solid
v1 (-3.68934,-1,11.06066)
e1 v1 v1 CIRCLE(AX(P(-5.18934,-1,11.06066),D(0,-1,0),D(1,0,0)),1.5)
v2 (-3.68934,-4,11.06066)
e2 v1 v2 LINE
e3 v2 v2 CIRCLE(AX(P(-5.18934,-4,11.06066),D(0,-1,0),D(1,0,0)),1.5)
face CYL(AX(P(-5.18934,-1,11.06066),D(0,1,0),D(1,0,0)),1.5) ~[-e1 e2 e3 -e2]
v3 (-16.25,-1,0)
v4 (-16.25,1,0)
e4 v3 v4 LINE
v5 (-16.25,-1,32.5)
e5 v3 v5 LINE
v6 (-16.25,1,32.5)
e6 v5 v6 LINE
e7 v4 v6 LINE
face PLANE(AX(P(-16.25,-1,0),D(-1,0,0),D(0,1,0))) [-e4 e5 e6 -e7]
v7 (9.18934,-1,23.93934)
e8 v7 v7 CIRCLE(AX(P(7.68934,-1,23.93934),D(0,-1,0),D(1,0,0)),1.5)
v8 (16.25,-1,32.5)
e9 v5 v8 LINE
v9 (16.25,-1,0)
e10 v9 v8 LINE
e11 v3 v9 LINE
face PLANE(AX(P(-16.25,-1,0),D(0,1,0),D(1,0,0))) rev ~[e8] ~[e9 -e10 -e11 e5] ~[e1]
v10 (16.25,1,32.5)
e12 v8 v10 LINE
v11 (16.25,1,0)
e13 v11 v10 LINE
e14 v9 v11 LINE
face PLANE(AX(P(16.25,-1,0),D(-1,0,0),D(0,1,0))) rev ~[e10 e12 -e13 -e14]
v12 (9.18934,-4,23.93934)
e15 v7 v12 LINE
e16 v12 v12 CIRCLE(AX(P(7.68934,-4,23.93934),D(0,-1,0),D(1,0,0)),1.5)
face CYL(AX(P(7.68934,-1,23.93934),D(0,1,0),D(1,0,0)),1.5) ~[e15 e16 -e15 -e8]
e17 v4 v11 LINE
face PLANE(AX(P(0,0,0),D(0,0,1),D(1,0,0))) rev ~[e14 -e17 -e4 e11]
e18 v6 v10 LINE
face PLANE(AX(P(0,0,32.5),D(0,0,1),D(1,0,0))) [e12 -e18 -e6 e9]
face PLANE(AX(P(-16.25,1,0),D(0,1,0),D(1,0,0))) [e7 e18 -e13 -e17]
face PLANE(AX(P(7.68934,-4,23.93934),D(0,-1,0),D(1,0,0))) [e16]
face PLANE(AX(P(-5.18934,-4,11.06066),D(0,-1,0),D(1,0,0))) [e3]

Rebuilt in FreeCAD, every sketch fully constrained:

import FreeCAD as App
import Part
import Sketcher

V = App.Vector
Q = App.Units.Quantity

doc = App.newDocument("Part")
body = doc.addObject("PartDesign::Body", "Body")

# Sketch on XY plane
sketch1 = body.newObject("Sketcher::SketchObject", "Sketch")
sketch1.AttachmentSupport = (doc.getObject("XY_Plane"), [""])
sketch1.MapMode = "FlatFace"
sketch1.addGeometry(Part.LineSegment(V(-16.25, 1, 0), V(-16.25, -1, 0)), False)
sketch1.addGeometry(Part.LineSegment(V(-16.25, -1, 0), V(16.25, -1, 0)), False)
sketch1.addGeometry(Part.LineSegment(V(16.25, -1, 0), V(16.25, 1, 0)), False)
sketch1.addGeometry(Part.LineSegment(V(16.25, 1, 0), V(-16.25, 1, 0)), False)
sketch1.addConstraint(Sketcher.Constraint("Coincident", 0, 2, 1, 1))
sketch1.addConstraint(Sketcher.Constraint("Coincident", 1, 2, 2, 1))
sketch1.addConstraint(Sketcher.Constraint("Coincident", 2, 2, 3, 1))
sketch1.addConstraint(Sketcher.Constraint("Coincident", 3, 2, 0, 1))
sketch1.addConstraint(Sketcher.Constraint("Vertical", 0))
sketch1.addConstraint(Sketcher.Constraint("Horizontal", 1))
sketch1.addConstraint(Sketcher.Constraint("Vertical", 2))
sketch1.addConstraint(Sketcher.Constraint("Horizontal", 3))
sketch1.addConstraint(Sketcher.Constraint("Symmetric", 0, 2, 2, 2, -1, 1))
sketch1.addConstraint(Sketcher.Constraint("DistanceY", 0, 2, 0, 1, Q("2 mm")))
sketch1.addConstraint(Sketcher.Constraint("DistanceX", 1, 1, 1, 2, Q("32.5 mm")))
pad1 = body.newObject("PartDesign::Pad", "Pad")
pad1.Profile = sketch1
pad1.Length = 32.5

# Sketch on XZ plane
sketch2 = body.newObject("Sketcher::SketchObject", "Sketch001")
sketch2.AttachmentSupport = (doc.getObject("XZ_Plane"), [""])
sketch2.MapMode = "FlatFace"
sketch2.AttachmentOffset = App.Placement(V(0, 0, 1), App.Rotation())
sketch2.addGeometry(Part.Circle(V(-5.18934, 11.06066, 0), V(0, 0, 1), 1.5), False)
sketch2.addGeometry(Part.Circle(V(7.68934, 23.93934, 0), V(0, 0, 1), 1.5), False)
sketch2.addConstraint(Sketcher.Constraint("Equal", 0, 1))
sketch2.addConstraint(Sketcher.Constraint("Diameter", 0, Q("3 mm")))
sketch2.addConstraint(Sketcher.Constraint("DistanceX", 0, 3, -1, 1, Q("5.18934 mm")))
sketch2.addConstraint(Sketcher.Constraint("DistanceY", -1, 1, 0, 3, Q("11.06066 mm")))
sketch2.addConstraint(Sketcher.Constraint("DistanceX", -1, 1, 1, 3, Q("7.68934 mm")))
sketch2.addConstraint(Sketcher.Constraint("DistanceY", -1, 1, 1, 3, Q("23.93934 mm")))
pad2 = body.newObject("PartDesign::Pad", "Pad001")
pad2.Profile = sketch2
pad2.Length = 3

doc.recompute()
